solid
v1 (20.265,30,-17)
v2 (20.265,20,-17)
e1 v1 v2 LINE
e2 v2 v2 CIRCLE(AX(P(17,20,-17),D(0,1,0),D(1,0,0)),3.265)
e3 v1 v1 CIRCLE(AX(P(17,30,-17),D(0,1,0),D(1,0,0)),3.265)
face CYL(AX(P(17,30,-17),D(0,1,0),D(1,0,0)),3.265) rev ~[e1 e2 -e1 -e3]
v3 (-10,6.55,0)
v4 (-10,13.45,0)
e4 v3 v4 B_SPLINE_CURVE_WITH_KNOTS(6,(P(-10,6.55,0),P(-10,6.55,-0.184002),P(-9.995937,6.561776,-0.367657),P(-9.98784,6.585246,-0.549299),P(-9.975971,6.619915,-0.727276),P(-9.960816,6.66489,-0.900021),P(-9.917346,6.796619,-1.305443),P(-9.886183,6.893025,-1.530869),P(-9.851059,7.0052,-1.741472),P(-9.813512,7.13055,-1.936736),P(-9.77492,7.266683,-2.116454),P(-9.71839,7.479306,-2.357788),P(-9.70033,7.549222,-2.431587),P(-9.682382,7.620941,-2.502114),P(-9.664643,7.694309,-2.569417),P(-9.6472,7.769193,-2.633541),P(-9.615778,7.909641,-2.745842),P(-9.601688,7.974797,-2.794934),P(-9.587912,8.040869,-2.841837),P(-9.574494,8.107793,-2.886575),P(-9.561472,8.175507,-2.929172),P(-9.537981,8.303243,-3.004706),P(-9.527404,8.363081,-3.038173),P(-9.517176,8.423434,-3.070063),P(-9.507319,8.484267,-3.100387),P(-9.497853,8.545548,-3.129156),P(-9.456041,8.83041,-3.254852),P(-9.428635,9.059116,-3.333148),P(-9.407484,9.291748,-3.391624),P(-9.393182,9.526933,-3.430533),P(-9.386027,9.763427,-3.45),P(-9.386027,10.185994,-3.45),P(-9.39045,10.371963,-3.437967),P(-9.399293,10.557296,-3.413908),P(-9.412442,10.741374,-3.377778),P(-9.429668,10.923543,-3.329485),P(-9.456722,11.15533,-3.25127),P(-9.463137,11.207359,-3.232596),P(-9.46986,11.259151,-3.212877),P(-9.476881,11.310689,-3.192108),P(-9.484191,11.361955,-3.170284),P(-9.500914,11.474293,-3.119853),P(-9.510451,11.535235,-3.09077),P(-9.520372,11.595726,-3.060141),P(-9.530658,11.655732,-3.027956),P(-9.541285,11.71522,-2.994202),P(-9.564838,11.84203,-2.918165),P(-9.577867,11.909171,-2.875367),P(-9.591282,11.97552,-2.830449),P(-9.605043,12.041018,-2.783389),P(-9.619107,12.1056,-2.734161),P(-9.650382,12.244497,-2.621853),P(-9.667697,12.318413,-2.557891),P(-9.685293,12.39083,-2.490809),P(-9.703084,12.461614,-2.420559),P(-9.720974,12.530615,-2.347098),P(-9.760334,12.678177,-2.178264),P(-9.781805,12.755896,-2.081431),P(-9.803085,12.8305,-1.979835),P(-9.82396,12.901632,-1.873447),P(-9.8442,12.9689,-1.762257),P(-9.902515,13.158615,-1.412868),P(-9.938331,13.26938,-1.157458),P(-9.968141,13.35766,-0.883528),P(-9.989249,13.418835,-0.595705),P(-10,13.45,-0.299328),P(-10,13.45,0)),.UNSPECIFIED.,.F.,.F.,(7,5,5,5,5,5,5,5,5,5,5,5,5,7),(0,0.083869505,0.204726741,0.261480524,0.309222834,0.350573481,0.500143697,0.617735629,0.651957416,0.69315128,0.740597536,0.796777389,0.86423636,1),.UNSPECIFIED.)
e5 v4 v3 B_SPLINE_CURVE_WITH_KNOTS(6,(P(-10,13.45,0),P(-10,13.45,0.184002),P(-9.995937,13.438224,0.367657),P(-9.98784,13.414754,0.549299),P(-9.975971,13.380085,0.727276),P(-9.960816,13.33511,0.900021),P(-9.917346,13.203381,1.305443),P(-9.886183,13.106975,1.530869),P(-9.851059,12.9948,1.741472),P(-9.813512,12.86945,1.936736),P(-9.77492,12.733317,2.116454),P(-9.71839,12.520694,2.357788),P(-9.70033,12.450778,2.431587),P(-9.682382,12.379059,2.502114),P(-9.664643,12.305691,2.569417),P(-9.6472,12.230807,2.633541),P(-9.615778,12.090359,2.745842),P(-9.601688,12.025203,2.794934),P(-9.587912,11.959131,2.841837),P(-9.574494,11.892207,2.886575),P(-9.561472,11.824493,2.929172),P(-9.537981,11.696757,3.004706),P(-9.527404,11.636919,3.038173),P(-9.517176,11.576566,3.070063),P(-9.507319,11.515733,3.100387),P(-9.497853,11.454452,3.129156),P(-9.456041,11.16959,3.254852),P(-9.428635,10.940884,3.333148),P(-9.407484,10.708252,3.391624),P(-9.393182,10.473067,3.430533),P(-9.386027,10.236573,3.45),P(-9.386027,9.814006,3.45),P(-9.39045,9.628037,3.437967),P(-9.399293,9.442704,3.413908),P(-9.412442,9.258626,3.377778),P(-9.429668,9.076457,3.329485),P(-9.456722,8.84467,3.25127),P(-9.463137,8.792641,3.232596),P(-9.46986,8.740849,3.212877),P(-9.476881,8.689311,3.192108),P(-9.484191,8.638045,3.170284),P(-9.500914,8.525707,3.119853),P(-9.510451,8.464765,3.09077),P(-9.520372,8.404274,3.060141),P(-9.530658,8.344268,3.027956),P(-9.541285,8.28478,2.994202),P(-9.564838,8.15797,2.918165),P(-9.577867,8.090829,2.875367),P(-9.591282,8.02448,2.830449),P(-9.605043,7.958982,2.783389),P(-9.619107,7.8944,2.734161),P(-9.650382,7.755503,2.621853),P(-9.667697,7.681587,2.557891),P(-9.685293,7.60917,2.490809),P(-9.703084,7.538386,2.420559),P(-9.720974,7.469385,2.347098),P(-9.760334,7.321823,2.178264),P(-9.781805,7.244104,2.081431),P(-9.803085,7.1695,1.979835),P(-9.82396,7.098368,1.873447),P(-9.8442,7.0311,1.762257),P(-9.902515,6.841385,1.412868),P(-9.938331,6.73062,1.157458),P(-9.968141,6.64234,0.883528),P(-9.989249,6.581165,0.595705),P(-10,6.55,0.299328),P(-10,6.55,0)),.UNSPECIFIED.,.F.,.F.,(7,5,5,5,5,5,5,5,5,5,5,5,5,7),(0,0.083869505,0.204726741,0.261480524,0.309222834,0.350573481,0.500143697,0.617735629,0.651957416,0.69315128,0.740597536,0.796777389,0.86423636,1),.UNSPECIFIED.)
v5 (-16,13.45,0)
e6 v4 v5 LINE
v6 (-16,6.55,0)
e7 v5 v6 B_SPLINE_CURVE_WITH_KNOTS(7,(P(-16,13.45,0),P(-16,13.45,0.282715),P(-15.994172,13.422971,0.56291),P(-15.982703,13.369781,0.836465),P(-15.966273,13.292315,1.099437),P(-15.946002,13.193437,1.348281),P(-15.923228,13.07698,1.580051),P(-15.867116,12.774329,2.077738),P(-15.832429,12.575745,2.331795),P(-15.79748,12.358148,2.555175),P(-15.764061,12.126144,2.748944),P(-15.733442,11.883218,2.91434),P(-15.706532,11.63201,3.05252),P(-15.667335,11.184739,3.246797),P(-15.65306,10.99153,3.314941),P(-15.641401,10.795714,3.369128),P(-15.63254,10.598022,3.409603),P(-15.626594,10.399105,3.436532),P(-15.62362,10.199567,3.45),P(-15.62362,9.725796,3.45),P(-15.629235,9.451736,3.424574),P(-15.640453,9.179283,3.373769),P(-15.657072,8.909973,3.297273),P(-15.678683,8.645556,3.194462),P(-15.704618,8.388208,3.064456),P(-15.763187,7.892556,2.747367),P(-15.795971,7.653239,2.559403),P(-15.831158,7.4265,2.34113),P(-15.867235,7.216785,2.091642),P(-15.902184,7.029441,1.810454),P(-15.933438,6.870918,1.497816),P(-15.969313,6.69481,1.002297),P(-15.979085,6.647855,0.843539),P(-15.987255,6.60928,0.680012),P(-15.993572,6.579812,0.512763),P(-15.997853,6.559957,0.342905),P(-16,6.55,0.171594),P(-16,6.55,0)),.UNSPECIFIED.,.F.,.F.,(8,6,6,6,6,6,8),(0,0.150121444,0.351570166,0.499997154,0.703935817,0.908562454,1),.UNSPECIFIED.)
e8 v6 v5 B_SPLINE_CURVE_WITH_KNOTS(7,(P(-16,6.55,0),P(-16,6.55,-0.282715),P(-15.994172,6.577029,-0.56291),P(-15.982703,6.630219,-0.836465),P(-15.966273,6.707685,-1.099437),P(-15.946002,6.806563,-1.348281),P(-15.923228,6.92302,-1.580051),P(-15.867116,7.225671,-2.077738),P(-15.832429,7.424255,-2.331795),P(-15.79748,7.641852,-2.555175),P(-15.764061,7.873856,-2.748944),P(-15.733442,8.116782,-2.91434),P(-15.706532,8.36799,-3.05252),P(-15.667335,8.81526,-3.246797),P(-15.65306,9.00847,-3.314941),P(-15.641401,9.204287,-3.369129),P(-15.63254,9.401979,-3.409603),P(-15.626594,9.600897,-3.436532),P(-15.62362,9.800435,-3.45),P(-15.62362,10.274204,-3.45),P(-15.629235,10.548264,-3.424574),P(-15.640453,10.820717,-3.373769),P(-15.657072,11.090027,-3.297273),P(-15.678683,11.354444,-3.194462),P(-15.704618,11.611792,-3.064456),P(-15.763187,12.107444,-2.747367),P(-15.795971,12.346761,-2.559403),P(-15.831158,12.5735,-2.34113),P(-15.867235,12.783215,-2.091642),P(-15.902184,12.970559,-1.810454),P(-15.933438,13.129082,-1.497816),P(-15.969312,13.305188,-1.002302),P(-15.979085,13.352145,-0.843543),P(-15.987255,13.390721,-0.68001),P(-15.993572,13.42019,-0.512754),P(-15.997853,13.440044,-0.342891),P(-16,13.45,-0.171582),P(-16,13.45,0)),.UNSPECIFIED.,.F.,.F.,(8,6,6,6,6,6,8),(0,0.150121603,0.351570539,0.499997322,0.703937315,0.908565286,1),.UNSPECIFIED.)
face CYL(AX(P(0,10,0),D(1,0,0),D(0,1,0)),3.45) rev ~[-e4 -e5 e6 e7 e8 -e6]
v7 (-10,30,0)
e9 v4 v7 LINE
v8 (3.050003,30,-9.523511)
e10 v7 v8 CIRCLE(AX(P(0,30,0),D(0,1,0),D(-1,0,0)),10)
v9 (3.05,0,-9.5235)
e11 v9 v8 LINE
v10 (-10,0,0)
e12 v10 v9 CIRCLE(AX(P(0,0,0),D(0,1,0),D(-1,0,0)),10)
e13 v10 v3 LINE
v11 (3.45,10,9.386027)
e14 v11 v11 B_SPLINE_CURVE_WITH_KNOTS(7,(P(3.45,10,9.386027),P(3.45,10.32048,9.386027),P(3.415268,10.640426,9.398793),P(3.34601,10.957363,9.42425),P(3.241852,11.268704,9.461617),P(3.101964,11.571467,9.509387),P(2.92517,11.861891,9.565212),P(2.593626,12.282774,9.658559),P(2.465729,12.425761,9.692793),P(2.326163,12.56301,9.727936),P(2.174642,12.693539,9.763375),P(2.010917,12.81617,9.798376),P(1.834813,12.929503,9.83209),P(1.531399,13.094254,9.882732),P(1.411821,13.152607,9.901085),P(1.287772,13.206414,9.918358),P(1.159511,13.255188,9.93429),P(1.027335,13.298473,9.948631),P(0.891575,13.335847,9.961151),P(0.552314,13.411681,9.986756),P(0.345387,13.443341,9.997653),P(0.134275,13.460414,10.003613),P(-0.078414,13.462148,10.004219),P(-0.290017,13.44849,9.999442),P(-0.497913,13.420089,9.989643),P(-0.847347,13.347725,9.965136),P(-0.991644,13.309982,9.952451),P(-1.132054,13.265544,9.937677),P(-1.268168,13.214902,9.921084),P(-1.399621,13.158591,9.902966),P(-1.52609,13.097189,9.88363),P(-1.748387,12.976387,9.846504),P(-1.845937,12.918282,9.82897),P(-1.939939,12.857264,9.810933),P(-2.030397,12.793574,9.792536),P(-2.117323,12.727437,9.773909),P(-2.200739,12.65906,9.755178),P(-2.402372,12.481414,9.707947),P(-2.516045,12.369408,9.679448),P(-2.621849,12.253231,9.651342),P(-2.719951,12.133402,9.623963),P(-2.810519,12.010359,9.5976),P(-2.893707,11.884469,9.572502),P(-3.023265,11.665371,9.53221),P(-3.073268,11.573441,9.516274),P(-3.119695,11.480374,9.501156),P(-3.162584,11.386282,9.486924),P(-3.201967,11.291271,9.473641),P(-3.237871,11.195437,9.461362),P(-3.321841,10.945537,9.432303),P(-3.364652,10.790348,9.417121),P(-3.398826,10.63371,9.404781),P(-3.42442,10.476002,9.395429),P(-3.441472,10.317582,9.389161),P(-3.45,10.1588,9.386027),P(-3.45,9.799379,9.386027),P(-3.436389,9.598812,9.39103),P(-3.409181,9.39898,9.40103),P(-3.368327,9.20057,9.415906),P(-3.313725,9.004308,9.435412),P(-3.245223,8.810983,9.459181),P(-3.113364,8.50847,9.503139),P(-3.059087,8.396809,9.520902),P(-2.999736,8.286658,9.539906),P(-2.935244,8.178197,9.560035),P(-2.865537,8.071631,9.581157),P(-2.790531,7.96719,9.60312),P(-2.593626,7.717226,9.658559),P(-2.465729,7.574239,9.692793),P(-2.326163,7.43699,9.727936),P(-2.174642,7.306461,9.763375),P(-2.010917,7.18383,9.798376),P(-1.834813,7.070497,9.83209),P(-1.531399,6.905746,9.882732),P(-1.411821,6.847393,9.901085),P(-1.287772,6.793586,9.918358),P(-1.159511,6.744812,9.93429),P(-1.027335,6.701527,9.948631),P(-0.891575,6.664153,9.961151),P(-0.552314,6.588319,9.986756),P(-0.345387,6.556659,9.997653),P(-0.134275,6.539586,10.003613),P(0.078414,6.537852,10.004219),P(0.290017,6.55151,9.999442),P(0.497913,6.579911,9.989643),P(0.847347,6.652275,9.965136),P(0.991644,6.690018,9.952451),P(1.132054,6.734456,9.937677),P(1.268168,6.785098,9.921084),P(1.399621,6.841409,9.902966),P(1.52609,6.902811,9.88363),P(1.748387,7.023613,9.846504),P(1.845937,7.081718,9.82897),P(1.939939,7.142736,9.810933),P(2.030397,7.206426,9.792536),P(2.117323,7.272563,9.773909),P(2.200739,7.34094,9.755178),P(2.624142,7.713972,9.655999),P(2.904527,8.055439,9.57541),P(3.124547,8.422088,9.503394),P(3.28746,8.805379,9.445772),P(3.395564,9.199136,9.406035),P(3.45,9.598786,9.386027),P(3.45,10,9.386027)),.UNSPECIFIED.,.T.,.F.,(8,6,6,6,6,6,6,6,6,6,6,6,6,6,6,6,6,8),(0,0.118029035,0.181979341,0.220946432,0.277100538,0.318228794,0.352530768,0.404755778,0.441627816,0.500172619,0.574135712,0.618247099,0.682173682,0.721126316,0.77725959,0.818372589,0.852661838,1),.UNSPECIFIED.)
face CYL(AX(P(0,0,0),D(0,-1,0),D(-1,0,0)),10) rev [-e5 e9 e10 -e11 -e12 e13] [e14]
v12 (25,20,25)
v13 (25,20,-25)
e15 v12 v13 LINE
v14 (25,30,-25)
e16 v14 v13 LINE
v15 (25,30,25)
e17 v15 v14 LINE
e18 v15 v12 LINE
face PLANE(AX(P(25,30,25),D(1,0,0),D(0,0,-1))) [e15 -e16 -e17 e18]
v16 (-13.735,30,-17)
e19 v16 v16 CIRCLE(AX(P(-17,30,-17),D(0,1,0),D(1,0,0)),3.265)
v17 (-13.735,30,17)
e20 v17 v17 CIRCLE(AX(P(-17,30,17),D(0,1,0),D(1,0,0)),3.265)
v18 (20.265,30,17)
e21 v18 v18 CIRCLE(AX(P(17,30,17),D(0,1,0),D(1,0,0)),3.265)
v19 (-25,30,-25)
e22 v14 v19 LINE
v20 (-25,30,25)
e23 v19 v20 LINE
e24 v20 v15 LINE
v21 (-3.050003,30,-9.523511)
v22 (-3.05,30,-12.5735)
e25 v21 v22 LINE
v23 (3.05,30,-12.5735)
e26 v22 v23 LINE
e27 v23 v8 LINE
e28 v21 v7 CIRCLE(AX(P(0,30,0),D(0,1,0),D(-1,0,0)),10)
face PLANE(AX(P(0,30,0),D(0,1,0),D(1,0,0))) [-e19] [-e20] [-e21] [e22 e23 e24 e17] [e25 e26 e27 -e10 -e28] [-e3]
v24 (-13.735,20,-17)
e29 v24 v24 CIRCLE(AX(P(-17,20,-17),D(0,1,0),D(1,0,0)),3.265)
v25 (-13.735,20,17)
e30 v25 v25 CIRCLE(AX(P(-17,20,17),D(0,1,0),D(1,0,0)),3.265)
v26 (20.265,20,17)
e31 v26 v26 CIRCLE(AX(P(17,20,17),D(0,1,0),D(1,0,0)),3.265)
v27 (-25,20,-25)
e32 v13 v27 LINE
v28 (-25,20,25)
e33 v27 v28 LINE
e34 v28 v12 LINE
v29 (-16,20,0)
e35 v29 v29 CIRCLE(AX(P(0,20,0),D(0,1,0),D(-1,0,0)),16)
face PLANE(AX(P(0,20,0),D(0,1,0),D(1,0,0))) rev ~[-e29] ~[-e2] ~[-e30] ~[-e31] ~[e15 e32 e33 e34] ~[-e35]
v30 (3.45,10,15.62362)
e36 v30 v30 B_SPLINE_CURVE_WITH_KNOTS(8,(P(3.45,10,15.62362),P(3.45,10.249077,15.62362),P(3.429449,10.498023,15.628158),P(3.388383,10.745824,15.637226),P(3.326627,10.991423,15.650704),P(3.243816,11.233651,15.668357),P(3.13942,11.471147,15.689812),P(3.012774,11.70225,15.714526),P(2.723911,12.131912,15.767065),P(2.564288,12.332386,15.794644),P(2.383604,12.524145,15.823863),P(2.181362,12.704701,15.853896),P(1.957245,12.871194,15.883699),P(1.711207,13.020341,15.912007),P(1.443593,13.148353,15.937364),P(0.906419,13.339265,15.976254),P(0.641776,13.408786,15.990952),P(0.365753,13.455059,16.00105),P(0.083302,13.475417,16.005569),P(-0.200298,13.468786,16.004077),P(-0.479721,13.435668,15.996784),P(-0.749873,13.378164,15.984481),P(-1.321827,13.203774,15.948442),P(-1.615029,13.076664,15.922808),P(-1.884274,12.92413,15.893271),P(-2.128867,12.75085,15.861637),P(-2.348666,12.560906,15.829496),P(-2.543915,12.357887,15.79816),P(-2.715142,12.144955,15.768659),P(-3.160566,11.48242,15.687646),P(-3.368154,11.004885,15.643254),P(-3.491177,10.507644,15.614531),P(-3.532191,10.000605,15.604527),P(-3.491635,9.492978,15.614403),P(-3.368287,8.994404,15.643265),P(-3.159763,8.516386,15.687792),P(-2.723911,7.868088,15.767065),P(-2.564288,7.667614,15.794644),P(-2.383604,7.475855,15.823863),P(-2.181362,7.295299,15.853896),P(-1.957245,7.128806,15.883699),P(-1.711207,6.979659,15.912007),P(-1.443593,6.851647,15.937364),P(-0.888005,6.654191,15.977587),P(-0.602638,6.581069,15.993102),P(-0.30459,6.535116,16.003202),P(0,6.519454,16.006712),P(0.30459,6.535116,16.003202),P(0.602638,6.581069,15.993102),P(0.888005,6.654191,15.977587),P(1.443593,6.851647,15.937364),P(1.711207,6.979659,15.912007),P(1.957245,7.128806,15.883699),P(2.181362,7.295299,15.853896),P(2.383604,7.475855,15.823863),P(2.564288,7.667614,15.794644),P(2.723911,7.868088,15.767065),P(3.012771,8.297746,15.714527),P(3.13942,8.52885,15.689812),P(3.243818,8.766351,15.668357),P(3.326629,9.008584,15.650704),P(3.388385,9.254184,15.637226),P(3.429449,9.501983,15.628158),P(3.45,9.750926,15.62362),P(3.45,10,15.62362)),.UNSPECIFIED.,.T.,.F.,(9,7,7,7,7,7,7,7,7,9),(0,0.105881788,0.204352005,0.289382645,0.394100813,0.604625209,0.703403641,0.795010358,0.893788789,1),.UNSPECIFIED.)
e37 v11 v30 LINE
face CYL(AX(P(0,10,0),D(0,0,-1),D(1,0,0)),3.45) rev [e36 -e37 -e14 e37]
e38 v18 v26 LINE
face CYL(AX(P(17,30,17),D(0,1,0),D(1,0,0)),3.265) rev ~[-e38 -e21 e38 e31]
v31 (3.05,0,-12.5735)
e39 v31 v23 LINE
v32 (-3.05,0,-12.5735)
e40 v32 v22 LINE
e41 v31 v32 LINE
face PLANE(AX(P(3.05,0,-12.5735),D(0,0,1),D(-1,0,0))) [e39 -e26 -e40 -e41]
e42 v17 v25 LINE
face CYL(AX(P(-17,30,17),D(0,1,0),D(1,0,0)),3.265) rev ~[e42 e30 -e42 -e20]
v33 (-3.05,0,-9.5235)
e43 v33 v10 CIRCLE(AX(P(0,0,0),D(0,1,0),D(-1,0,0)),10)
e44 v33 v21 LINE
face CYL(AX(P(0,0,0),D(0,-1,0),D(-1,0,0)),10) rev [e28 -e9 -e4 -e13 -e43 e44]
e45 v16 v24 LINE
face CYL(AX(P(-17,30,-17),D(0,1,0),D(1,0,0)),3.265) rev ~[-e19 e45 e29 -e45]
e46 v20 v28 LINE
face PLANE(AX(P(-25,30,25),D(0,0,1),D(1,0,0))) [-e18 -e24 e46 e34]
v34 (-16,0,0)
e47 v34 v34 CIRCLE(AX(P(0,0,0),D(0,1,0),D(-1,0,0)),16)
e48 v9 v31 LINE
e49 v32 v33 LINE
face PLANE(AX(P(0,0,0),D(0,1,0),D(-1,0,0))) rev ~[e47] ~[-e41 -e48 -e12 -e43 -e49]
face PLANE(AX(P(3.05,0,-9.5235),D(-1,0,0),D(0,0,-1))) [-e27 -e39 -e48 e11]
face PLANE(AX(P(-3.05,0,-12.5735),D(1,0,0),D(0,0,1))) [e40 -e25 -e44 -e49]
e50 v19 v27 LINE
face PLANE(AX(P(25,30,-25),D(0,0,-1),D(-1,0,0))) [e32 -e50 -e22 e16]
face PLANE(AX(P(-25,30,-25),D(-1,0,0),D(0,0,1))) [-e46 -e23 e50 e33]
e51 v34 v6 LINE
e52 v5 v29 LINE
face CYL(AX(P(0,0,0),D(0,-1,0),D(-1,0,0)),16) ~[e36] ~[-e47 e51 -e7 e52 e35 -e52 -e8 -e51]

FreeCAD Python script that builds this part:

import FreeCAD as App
import Part
import Sketcher
Q = App.Units.Quantity


def add_polygon(sketch, points):
    """Adds a closed chain of lines whose ends are joined by coincident constraints."""
    first, n = sketch.GeometryCount, len(points)
    for a, b in zip(points, points[1:] + points[:1]):
        sketch.addGeometry(Part.LineSegment(App.Vector(*a, 0), App.Vector(*b, 0)), False)
    for i in range(n):
        sketch.addConstraint(Sketcher.Constraint("Coincident", first + i, 2, first + (i + 1) % n, 1))

doc = App.newDocument("Part")
params = doc.addObject("Spreadsheet::Sheet", "Params")
for row, (alias, value) in enumerate([
    ("sketch1_diameter", "32 mm"),
    ("sketch1_diameter2", "20 mm"),
    ("pad1_length", "30 mm"),
    ("sketch2_diameter", "6.9 mm"),
    ("pocket1_length", "30 mm"),
    ("sketch3_diameter", "6.9 mm"),
    ("pocket2_length", "30 mm"),
    ("sketch4_width", "6.1 mm"),
    ("sketch4_height", "3.05 mm"),
    ("sketch5_diameter", "6.53 mm"),
    ("sketch5_width", "50 mm"),
    ("sketch5_diameter2", "32 mm"),
    ("pad2_length", "10 mm"),
], start=1):
    params.set(f"A{row}", alias)
    params.set(f"B{row}", "=" + value)
    params.setAlias(f"B{row}", alias)

body = doc.addObject("PartDesign::Body", "Body")

# Sketch on XZ plane
sketch1 = body.newObject("Sketcher::SketchObject", "Sketch")
sketch1.AttachmentSupport = (doc.getObject("XZ_Plane"), [""])
sketch1.MapMode = "FlatFace"
sketch1.addGeometry([
    Part.Circle(App.Vector(0, 0, 0), App.Vector(0, 0, 1), 16),
    Part.Circle(App.Vector(0, 0, 0), App.Vector(0, 0, 1), 10),
], False)
sketch1.addConstraint([
    Sketcher.Constraint("Coincident", 0, 3, -1, 1),
    Sketcher.Constraint("Coincident", 1, 3, -1, 1),
    Sketcher.Constraint("Diameter", 0, Q("32 mm")),
    Sketcher.Constraint("Diameter", 1, Q("20 mm")),
])
sketch1.setExpression("Constraints[2]", "Params.sketch1_diameter")
sketch1.setExpression("Constraints[3]", "Params.sketch1_diameter2")
pad1 = body.newObject("PartDesign::Pad", "Pad")
pad1.Profile = sketch1
pad1.setExpression("Length", "Params.pad1_length")
pad1.Reversed = True

# Sketch on XY plane
sketch2 = body.newObject("Sketcher::SketchObject", "Sketch001")
sketch2.AttachmentSupport = (doc.getObject("XY_Plane"), [""])
sketch2.MapMode = "FlatFace"
sketch2.addGeometry(Part.Circle(App.Vector(0, 10, 0), App.Vector(0, 0, 1), 3.5), False)
sketch2.addConstraint([
    Sketcher.Constraint("PointOnObject", 0, 3, -2),
    Sketcher.Constraint("Diameter", 0, Q("6.9 mm")),
    Sketcher.Constraint("DistanceY", -1, 1, 0, 3, Q("10 mm")),
])
sketch2.setExpression("Constraints[1]", "Params.sketch2_diameter")
pocket1 = body.newObject("PartDesign::Pocket", "Pocket")
pocket1.Profile = sketch2
pocket1.setExpression("Length", "Params.pocket1_length")
pocket1.Reversed = True

# Sketch on YZ plane
sketch3 = body.newObject("Sketcher::SketchObject", "Sketch002")
sketch3.AttachmentSupport = (doc.getObject("YZ_Plane"), [""])
sketch3.MapMode = "FlatFace"
sketch3.addGeometry(Part.Circle(App.Vector(10, 0, 0), App.Vector(0, 0, 1), 3.5), False)
sketch3.addConstraint([
    Sketcher.Constraint("PointOnObject", 0, 3, -1),
    Sketcher.Constraint("Diameter", 0, Q("6.9 mm")),
    Sketcher.Constraint("DistanceX", -1, 1, 0, 3, Q("10 mm")),
])
sketch3.setExpression("Constraints[1]", "Params.sketch3_diameter")
pocket2 = body.newObject("PartDesign::Pocket", "Pocket001")
pocket2.Profile = sketch3
pocket2.setExpression("Length", "Params.pocket2_length")

# Sketch on XZ plane
sketch4 = body.newObject("Sketcher::SketchObject", "Sketch003")
sketch4.AttachmentSupport = (doc.getObject("XZ_Plane"), [""])
sketch4.MapMode = "FlatFace"
add_polygon(sketch4, [(3, -12.6), (3, -9.5), (-3, -9.5), (-3, -12.6)])  # lines 0-3
sketch4.addConstraint([
    Sketcher.Constraint("Vertical", 0),
    Sketcher.Constraint("Horizontal", 1),
    Sketcher.Constraint("Vertical", 2),
    Sketcher.Constraint("Horizontal", 3),
    Sketcher.Constraint("DistanceX", 1, 2, 1, 1, Q("6.1 mm")),
    Sketcher.Constraint("DistanceY", 0, 1, 0, 2, Q("3.05 mm")),
    Sketcher.Constraint("DistanceX", -1, 1, 0, 2, Q("3.05 mm")),
    Sketcher.Constraint("DistanceY", 0, 2, -1, 1, Q("9.5235 mm")),
])
sketch4.setExpression("Constraints[8]", "Params.sketch4_width")
sketch4.setExpression("Constraints[9]", "Params.sketch4_height")
pocket3 = body.newObject("PartDesign::Pocket", "Pocket002")
pocket3.Profile = sketch4
pocket3.Type = "ThroughAll"

# Sketch on XZ plane
sketch5 = body.newObject("Sketcher::SketchObject", "Sketch004")
sketch5.AttachmentSupport = (doc.getObject("XZ_Plane"), [""])
sketch5.MapMode = "FlatFace"
sketch5.AttachmentOffset = App.Placement(App.Vector(0, 0, -30), App.Rotation())
add_polygon(sketch5, [(-25, -25), (-25, 25), (25, 25), (25, -25)])  # lines 0-3
sketch5.addGeometry(Part.Circle(App.Vector(-17, 17, 0), App.Vector(0, 0, 1), 3.3), False)  # 4
sketch5.addGeometry(Part.Circle(App.Vector(17, 17, 0), App.Vector(0, 0, 1), 3.3), False)  # 5
sketch5.addGeometry(Part.Circle(App.Vector(-17, -17, 0), App.Vector(0, 0, 1), 3.3), False)  # 6
sketch5.addGeometry(Part.Circle(App.Vector(0, 0, 0), App.Vector(0, 0, 1), 16), False)  # 7
sketch5.addGeometry(Part.Circle(App.Vector(17, -17, 0), App.Vector(0, 0, 1), 3.3), False)  # 8
sketch5.addConstraint([
    Sketcher.Constraint("Vertical", 0),
    Sketcher.Constraint("Horizontal", 1),
    Sketcher.Constraint("Vertical", 2),
    Sketcher.Constraint("Horizontal", 3),
    Sketcher.Constraint("Coincident", 7, 3, -1, 1),
    Sketcher.Constraint("Equal", 4, 5),
    Sketcher.Constraint("Equal", 5, 6),
    Sketcher.Constraint("Equal", 6, 8),
    Sketcher.Constraint("Symmetric", 5, 3, 6, 3, -1, 1),
    Sketcher.Constraint("Symmetric", 4, 3, 8, 3, -1, 1),
    Sketcher.Constraint("Symmetric", 0, 2, 2, 2, -1, 1),
    Sketcher.Constraint("Symmetric", 4, 3, 5, 3, -2),
    Sketcher.Constraint("Equal", 3, 0),
    Sketcher.Constraint("Diameter", 4, Q("6.53 mm")),
    Sketcher.Constraint("DistanceX", 1, 1, 1, 2, Q("50 mm")),
    Sketcher.Constraint("Diameter", 7, Q("32 mm")),
    Sketcher.Constraint("DistanceX", 0, 2, 4, 3, Q("8 mm")),
    Sketcher.Constraint("DistanceY", 4, 3, 0, 2, Q("8 mm")),
])
sketch5.setExpression("Constraints[17]", "Params.sketch5_diameter")
sketch5.setExpression("Constraints[18]", "Params.sketch5_width")
sketch5.setExpression("Constraints[19]", "Params.sketch5_diameter2")
pad2 = body.newObject("PartDesign::Pad", "Pad001")
pad2.Profile = sketch5
pad2.setExpression("Length", "Params.pad2_length")

doc.recompute()
